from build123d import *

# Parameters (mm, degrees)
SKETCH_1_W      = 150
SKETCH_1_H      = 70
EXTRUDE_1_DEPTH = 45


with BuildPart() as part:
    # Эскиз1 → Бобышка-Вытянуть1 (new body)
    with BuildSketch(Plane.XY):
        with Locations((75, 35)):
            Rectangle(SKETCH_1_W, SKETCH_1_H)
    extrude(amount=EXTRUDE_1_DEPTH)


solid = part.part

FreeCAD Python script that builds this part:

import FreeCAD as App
import Part
import Sketcher

V = App.Vector


def add_polygon(sketch, points):
    """Adds a closed chain of lines whose ends are joined by coincident constraints."""
    first, n = sketch.GeometryCount, len(points)
    for a, b in zip(points, points[1:] + points[:1]):
        sketch.addGeometry(Part.LineSegment(App.Vector(*a, 0), App.Vector(*b, 0)), False)
    for i in range(n):
        sketch.addConstraint(Sketcher.Constraint("Coincident", first + i, 2, first + (i + 1) % n, 1))

doc = App.newDocument("Part")
params = doc.addObject("Spreadsheet::Sheet", "Params")
for row, (alias, value) in enumerate([
    ("sketch1_width", "150 mm"),
    ("sketch1_height", "70 mm"),
    ("pad1_length", "45 mm"),
], start=1):
    params.set(f"A{row}", alias)
    params.set(f"B{row}", "=" + value)
    params.setAlias(f"B{row}", alias)

body = doc.addObject("PartDesign::Body", "Body")

# Sketch on XY plane
sketch1 = doc.addObject("Sketcher::SketchObject", "Sketch")
body.addObject(sketch1)
sketch1.AttachmentSupport = (doc.XY_Plane, [""])
sketch1.MapMode = "FlatFace"
add_polygon(sketch1, [(0, 70), (0, 0), (150, 0), (150, 70)])  # lines 0-3
sketch1.addConstraint(Sketcher.Constraint("Vertical", 0))
sketch1.addConstraint(Sketcher.Constraint("Horizontal", 1))
sketch1.addConstraint(Sketcher.Constraint("Vertical", 2))
sketch1.addConstraint(Sketcher.Constraint("Horizontal", 3))
sketch1.addConstraint(Sketcher.Constraint("Coincident", 0, 2, -1, 1))
sketch1.addConstraint(Sketcher.Constraint("DistanceX", 1, 1, 1, 2, 150.0))
sketch1.addConstraint(Sketcher.Constraint("DistanceY", 0, 2, 0, 1, 70.0))
sketch1.setExpression("Constraints[9]", "Params.sketch1_width")
sketch1.setExpression("Constraints[10]", "Params.sketch1_height")
pad1 = doc.addObject("PartDesign::Pad", "Pad")
body.addObject(pad1)
pad1.Profile = sketch1
pad1.setExpression("Length", "Params.pad1_length")

doc.recompute()
